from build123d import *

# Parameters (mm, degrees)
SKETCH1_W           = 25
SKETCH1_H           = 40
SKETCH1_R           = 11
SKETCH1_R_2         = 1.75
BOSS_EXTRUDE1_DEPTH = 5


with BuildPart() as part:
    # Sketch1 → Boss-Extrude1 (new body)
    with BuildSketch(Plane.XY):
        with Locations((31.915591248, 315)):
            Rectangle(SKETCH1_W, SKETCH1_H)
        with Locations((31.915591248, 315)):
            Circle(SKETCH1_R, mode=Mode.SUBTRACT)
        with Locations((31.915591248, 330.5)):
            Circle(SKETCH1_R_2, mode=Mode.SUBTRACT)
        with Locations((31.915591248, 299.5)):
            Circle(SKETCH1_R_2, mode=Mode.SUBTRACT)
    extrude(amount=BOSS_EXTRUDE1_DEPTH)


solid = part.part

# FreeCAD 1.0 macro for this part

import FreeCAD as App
import Part
import Sketcher

V = App.Vector
Q = App.Units.Quantity


def add_polygon(sketch, points):
    """Adds a closed chain of lines whose ends are joined by coincident constraints."""
    first, n = sketch.GeometryCount, len(points)
    for a, b in zip(points, points[1:] + points[:1]):
        sketch.addGeometry(Part.LineSegment(App.Vector(*a, 0), App.Vector(*b, 0)), False)
    for i in range(n):
        sketch.addConstraint(Sketcher.Constraint("Coincident", first + i, 2, first + (i + 1) % n, 1))

doc = App.newDocument("Part")
body = doc.addObject("PartDesign::Body", "Body")

# Sketch on XY plane
sketch1 = body.newObject("Sketcher::SketchObject", "Sketch")
sketch1.AttachmentSupport = (doc.getObject("XY_Plane"), [""])
sketch1.MapMode = "FlatFace"
add_polygon(sketch1, [(19.415591, 335), (19.415591, 295), (44.415591, 295), (44.415591, 335)])  # lines 0-3
sketch1.addGeometry(Part.Circle(V(31.915591, 299.5, 0), V(0, 0, 1), 1.75), False)  # 4
sketch1.addGeometry(Part.Circle(V(31.915591, 315, 0), V(0, 0, 1), 11), False)  # 5
sketch1.addGeometry(Part.Circle(V(31.915591, 330.5, 0), V(0, 0, 1), 1.75), False)  # 6
sketch1.addConstraint([
    Sketcher.Constraint("Vertical", 0),
    Sketcher.Constraint("Horizontal", 1),
    Sketcher.Constraint("Vertical", 2),
    Sketcher.Constraint("Horizontal", 3),
    Sketcher.Constraint("Equal", 4, 6),
    Sketcher.Constraint("Vertical", 4, 3, 5, 3),
    Sketcher.Constraint("Vertical", 5, 3, 6, 3),
    Sketcher.Constraint("Diameter", 5, Q("22 mm")),
    Sketcher.Constraint("Diameter", 4, Q("3.5 mm")),
    Sketcher.Constraint("DistanceX", 1, 1, 1, 2, Q("25 mm")),
    Sketcher.Constraint("DistanceY", 0, 2, 0, 1, Q("40 mm")),
    Sketcher.Constraint("DistanceY", -1, 1, 5, 3, Q("315 mm")),
    Sketcher.Constraint("DistanceY", -1, 1, 0, 2, Q("295 mm")),
    Sketcher.Constraint("DistanceY", 4, 3, 6, 3, Q("31 mm")),
    Sketcher.Constraint("DistanceY", -1, 1, 4, 3, Q("299.5 mm")),
    Sketcher.Constraint("DistanceX", 0, 2, 4, 3, Q("12.5 mm")),
    Sketcher.Constraint("DistanceX", -1, 1, 4, 3, Q("31.915591 mm")),
])
pad1 = body.newObject("PartDesign::Pad", "Pad")
pad1.Profile = sketch1
pad1.Length = 5

doc.recompute()
